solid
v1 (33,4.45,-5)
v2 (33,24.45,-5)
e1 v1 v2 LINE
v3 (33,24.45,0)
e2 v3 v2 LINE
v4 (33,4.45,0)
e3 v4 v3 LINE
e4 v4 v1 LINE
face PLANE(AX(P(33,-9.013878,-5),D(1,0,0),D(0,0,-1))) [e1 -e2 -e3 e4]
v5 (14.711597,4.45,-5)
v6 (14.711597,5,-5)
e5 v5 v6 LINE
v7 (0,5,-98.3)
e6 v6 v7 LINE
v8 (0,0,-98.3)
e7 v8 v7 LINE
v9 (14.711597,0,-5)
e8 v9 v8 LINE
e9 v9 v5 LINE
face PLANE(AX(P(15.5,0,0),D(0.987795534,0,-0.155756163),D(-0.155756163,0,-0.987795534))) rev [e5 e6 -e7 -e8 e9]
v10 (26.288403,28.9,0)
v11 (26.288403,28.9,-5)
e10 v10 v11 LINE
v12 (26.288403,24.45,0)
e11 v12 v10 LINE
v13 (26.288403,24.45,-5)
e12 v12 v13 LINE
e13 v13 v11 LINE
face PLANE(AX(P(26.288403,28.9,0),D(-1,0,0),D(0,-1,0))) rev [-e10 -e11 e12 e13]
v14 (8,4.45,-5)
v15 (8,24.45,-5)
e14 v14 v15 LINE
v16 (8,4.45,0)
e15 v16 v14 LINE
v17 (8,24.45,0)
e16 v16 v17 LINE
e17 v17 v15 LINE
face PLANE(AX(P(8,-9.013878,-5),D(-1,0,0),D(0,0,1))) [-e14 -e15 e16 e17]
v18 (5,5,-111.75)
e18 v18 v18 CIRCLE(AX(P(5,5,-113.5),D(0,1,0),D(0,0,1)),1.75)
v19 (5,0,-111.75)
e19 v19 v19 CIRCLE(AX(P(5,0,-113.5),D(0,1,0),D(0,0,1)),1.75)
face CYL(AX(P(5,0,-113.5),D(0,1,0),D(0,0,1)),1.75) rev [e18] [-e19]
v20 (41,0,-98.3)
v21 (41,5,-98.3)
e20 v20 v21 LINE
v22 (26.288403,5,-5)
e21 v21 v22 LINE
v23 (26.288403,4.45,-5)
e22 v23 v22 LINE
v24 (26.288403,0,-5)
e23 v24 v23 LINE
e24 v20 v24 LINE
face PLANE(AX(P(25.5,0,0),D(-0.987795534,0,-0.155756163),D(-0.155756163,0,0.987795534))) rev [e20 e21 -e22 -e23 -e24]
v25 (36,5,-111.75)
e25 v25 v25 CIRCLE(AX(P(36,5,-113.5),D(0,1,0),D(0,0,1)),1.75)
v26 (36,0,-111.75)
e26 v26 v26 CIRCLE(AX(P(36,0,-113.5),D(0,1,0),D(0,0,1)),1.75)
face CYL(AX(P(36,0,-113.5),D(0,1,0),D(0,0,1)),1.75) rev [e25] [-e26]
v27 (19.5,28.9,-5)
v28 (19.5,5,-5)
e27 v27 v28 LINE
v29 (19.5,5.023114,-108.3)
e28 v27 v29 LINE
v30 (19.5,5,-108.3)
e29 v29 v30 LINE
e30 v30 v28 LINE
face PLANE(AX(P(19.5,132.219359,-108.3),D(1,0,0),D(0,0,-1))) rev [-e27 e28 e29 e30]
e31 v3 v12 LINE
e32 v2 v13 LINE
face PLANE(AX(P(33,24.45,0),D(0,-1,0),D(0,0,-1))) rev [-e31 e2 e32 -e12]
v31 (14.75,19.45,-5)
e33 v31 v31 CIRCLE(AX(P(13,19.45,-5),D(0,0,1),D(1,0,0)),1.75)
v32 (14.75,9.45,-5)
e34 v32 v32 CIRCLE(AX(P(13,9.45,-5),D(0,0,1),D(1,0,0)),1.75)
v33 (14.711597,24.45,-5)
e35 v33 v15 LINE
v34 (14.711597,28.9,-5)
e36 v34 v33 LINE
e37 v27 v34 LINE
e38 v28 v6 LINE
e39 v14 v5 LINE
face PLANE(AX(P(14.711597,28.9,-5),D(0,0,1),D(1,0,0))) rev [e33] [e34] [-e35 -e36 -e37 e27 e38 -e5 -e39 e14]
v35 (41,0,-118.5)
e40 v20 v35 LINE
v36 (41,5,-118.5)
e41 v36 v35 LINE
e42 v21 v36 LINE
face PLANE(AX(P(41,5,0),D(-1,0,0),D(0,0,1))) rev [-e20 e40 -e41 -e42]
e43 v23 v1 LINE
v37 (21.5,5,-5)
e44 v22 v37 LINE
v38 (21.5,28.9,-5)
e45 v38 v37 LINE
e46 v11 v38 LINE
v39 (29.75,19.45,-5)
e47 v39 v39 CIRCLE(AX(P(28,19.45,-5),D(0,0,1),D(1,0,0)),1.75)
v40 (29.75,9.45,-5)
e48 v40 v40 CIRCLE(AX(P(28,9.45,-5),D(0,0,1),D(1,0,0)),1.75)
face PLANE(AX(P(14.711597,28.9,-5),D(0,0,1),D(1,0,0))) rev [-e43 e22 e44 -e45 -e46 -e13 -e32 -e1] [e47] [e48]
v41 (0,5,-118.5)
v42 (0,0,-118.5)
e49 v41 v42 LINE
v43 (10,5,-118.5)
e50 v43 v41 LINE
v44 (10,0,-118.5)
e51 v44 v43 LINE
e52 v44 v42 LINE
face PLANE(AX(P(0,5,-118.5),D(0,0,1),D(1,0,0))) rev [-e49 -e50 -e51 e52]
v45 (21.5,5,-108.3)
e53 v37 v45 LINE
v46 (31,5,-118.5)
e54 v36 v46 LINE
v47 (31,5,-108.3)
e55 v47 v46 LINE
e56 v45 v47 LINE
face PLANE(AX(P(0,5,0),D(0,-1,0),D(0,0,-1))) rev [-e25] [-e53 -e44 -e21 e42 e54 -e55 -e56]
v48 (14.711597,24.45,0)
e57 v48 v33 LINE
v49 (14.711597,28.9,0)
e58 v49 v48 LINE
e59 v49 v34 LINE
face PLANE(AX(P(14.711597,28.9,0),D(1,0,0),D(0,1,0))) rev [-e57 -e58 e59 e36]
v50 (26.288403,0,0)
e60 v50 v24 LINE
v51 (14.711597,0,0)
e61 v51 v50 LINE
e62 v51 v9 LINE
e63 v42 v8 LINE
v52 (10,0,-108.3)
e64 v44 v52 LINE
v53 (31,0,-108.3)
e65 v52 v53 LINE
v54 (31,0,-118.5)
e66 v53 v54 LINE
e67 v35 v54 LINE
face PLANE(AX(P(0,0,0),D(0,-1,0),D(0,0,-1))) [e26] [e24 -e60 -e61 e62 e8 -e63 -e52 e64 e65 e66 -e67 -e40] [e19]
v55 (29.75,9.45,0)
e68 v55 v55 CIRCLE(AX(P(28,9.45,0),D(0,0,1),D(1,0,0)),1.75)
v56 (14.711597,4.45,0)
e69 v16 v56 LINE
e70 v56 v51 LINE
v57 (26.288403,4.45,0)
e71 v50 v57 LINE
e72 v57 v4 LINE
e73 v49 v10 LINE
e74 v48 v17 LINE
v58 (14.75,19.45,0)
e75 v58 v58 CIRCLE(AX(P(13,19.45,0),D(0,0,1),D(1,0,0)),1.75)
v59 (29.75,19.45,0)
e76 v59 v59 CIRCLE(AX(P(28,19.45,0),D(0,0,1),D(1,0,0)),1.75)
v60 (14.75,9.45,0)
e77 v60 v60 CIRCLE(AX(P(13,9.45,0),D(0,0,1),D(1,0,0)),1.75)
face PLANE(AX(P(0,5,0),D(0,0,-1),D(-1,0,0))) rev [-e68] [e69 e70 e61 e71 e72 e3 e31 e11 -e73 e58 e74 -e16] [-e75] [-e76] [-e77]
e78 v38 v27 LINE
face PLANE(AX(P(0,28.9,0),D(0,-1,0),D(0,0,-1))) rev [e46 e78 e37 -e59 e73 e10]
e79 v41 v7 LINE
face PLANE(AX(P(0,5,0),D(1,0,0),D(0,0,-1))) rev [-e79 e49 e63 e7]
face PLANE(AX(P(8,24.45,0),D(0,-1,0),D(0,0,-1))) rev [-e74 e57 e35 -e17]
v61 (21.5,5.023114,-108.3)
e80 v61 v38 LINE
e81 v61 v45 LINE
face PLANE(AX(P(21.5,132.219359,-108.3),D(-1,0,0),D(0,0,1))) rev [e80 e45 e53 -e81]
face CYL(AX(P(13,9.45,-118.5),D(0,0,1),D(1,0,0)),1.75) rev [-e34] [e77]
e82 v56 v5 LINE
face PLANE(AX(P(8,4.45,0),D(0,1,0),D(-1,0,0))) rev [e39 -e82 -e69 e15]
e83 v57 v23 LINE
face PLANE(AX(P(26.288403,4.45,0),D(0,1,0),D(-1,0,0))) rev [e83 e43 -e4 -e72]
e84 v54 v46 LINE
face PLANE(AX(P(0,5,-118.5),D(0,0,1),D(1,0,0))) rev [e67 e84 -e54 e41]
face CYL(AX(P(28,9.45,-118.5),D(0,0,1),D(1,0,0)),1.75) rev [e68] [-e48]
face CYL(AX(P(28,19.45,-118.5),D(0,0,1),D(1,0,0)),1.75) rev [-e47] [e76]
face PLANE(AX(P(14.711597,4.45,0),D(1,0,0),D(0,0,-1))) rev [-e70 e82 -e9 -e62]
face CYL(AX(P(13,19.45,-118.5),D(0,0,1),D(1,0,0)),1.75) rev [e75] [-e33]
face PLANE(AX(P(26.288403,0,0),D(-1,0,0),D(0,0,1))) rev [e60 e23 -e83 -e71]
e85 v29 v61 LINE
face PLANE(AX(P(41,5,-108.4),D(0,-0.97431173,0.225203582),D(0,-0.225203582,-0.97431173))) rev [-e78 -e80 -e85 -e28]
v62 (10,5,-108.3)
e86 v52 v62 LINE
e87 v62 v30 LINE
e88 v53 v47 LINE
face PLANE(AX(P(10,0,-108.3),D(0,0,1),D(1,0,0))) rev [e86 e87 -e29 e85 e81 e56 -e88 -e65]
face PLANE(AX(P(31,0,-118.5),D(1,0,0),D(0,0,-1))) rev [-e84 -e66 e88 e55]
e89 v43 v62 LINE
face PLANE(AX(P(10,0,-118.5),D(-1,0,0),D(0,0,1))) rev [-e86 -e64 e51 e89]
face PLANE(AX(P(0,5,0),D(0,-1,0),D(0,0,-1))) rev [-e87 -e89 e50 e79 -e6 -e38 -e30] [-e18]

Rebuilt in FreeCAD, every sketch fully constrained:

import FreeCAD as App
import Part
import Sketcher
from FreeCAD import Vector


def add_polygon(sketch, points):
    """Adds a closed chain of lines whose ends are joined by coincident constraints."""
    first, n = sketch.GeometryCount, len(points)
    for a, b in zip(points, points[1:] + points[:1]):
        sketch.addGeometry(Part.LineSegment(App.Vector(*a, 0), App.Vector(*b, 0)), False)
    for i in range(n):
        sketch.addConstraint(Sketcher.Constraint("Coincident", first + i, 2, first + (i + 1) % n, 1))

doc = App.newDocument("Part")
body = doc.addObject("PartDesign::Body", "Body")

# Sketch on XZ plane
sketch1 = doc.addObject("Sketcher::SketchObject", "Sketch")
body.addObject(sketch1)
sketch1.AttachmentSupport = (doc.XZ_Plane, [""])
sketch1.MapMode = "FlatFace"
add_polygon(sketch1, [(0, -118), (0, 0), (41, 0), (41, -118)])  # lines 0-3
sketch1.addConstraint(Sketcher.Constraint("Vertical", 0))
sketch1.addConstraint(Sketcher.Constraint("Horizontal", 1))
sketch1.addConstraint(Sketcher.Constraint("Vertical", 2))
sketch1.addConstraint(Sketcher.Constraint("Horizontal", 3))
sketch1.addConstraint(Sketcher.Constraint("Coincident", 0, 2, -1, 1))
sketch1.addConstraint(Sketcher.Constraint("DistanceX", 1, 1, 1, 2, 41.0))
sketch1.addConstraint(Sketcher.Constraint("DistanceY", 0, 1, 0, 2, 118.5))
pad1 = doc.addObject("PartDesign::Pad", "Pad")
body.addObject(pad1)
pad1.Profile = sketch1
pad1.Length = 5
pad1.Reversed = True

# Sketch on XZ plane
sketch2 = doc.addObject("Sketcher::SketchObject", "Sketch001")
body.addObject(sketch2)
sketch2.AttachmentSupport = (doc.XZ_Plane, [""])
sketch2.MapMode = "FlatFace"
sketch2.AttachmentOffset = App.Placement(Vector(0, 0, -5), App.Rotation())
add_polygon(sketch2, [(10, -118), (10, -108), (31, -108), (31, -118)])  # lines 0-3
sketch2.addConstraint(Sketcher.Constraint("Vertical", 0))
sketch2.addConstraint(Sketcher.Constraint("Horizontal", 1))
sketch2.addConstraint(Sketcher.Constraint("Vertical", 2))
sketch2.addConstraint(Sketcher.Constraint("Horizontal", 3))
sketch2.addConstraint(Sketcher.Constraint("DistanceX", 1, 1, 1, 2, 21.0))
sketch2.addConstraint(Sketcher.Constraint("DistanceY", 0, 1, 0, 2, 10.2))
sketch2.addConstraint(Sketcher.Constraint("DistanceX", -1, 1, 0, 2, 10.0))
sketch2.addConstraint(Sketcher.Constraint("DistanceY", 0, 2, -1, 1, 108.3))
pocket1 = doc.addObject("PartDesign::Pocket", "Pocket")
body.addObject(pocket1)
pocket1.Profile = sketch2
pocket1.Type = "ThroughAll"
pocket1.Reversed = True

# Sketch on XZ plane
sketch3 = doc.addObject("Sketcher::SketchObject", "Sketch002")
body.addObject(sketch3)
sketch3.AttachmentSupport = (doc.XZ_Plane, [""])
sketch3.MapMode = "FlatFace"
sketch3.AttachmentOffset = App.Placement(Vector(0, 0, -5), App.Rotation())
sketch3.addGeometry(Part.Circle(Vector(5, -113.5, 0), Vector(0, 0, 1), 1.8), False)
sketch3.addGeometry(Part.Circle(Vector(36, -113.5, 0), Vector(0, 0, 1), 1.8), False)
sketch3.addConstraint(Sketcher.Constraint("Equal", 0, 1))
sketch3.addConstraint(Sketcher.Constraint("Horizontal", 0, 3, 1, 3))
sketch3.addConstraint(Sketcher.Constraint("Diameter", 0, 3.5))
sketch3.addConstraint(Sketcher.Constraint("DistanceX", -1, 1, 0, 3, 5.0))
sketch3.addConstraint(Sketcher.Constraint("DistanceX", -1, 1, 1, 3, 36.0))
sketch3.addConstraint(Sketcher.Constraint("DistanceY", 0, 3, -1, 1, 113.5))
pocket2 = doc.addObject("PartDesign::Pocket", "Pocket001")
body.addObject(pocket2)
pocket2.Profile = sketch3
pocket2.Type = "ThroughAll"
pocket2.Reversed = True

# Sketch on XZ plane
sketch4 = doc.addObject("Sketcher::SketchObject", "Sketch003")
body.addObject(sketch4)
sketch4.AttachmentSupport = (doc.XZ_Plane, [""])
sketch4.MapMode = "FlatFace"
sketch4.AttachmentOffset = App.Placement(Vector(0, 0, -5), App.Rotation())
add_polygon(sketch4, [(16, 0), (0, -98), (0, 0)])  # lines 0-2
add_polygon(sketch4, [(41, -98), (26, 0), (41, 0)])  # lines 3-5
sketch4.addConstraint(Sketcher.Constraint("Vertical", 1))
sketch4.addConstraint(Sketcher.Constraint("Horizontal", 2))
sketch4.addConstraint(Sketcher.Constraint("Horizontal", 4))
sketch4.addConstraint(Sketcher.Constraint("Vertical", 5))
sketch4.addConstraint(Sketcher.Constraint("Coincident", 1, 2, -1, 1))
sketch4.addConstraint(Sketcher.Constraint("PointOnObject", 3, 2, -1))
sketch4.addConstraint(Sketcher.Constraint("Horizontal", 0, 2, 5, 2))
sketch4.addConstraint(Sketcher.Constraint("Equal", 2, 4))
sketch4.addConstraint(Sketcher.Constraint("DistanceX", 2, 1, 2, 2, 15.5))
sketch4.addConstraint(Sketcher.Constraint("DistanceY", 1, 1, 1, 2, 98.3))
sketch4.addConstraint(Sketcher.Constraint("DistanceX", -1, 1, 4, 2, 41.0))
pocket3 = doc.addObject("PartDesign::Pocket", "Pocket002")
body.addObject(pocket3)
pocket3.Profile = sketch4
pocket3.Type = "ThroughAll"
pocket3.Reversed = True

# Sketch on XZ plane
sketch5 = doc.addObject("Sketcher::SketchObject", "Sketch004")
body.addObject(sketch5)
sketch5.AttachmentSupport = (doc.XZ_Plane, [""])
sketch5.MapMode = "FlatFace"
sketch5.AttachmentOffset = App.Placement(Vector(0, 0, -5), App.Rotation())
add_polygon(sketch5, [(16, 0), (26, 0), (26, -5), (15, -5)])  # lines 0-3
sketch5.addConstraint(Sketcher.Constraint("Horizontal", 0))
sketch5.addConstraint(Sketcher.Constraint("Horizontal", 2))
sketch5.addConstraint(Sketcher.Constraint("PointOnObject", 0, 2, -1))
sketch5.addConstraint(Sketcher.Constraint("Equal", 1, 3))
sketch5.addConstraint(Sketcher.Constraint("DistanceX", 0, 1, 0, 2, 10.0))
sketch5.addConstraint(Sketcher.Constraint("DistanceY", 1, 2, -1, 1, 5.0))
sketch5.addConstraint(Sketcher.Constraint("DistanceX", -1, 1, 0, 2, 25.5))
sketch5.addConstraint(Sketcher.Constraint("DistanceX", 2, 2, 2, 1, 11.576806))
pad2 = doc.addObject("PartDesign::Pad", "Pad001")
body.addObject(pad2)
pad2.Profile = sketch5
pad2.Length = 23.9
pad2.Reversed = True

# Sketch on XZ plane
sketch6 = doc.addObject("Sketcher::SketchObject", "Sketch005")
body.addObject(sketch6)
sketch6.AttachmentSupport = (doc.XZ_Plane, [""])
sketch6.MapMode = "FlatFace"
sketch6.AttachmentOffset = App.Placement(Vector(0, 0, -5), App.Rotation())
add_polygon(sketch6, [(19.5, -108.3), (19.5, -5), (21.5, -5), (21.5, -108.3)])  # lines 0-3
sketch6.addConstraint(Sketcher.Constraint("Vertical", 0))
sketch6.addConstraint(Sketcher.Constraint("Horizontal", 1))
sketch6.addConstraint(Sketcher.Constraint("Vertical", 2))
sketch6.addConstraint(Sketcher.Constraint("Horizontal", 3))
sketch6.addConstraint(Sketcher.Constraint("DistanceX", 1, 1, 1, 2, 2.0))
sketch6.addConstraint(Sketcher.Constraint("DistanceY", 0, 1, 0, 2, 103.3))
sketch6.addConstraint(Sketcher.Constraint("DistanceY", 0, 2, -1, 1, 5.0))
sketch6.addConstraint(Sketcher.Constraint("DistanceX", -1, 1, 0, 2, 19.5))
pad3 = doc.addObject("PartDesign::Pad", "Pad002")
body.addObject(pad3)
pad3.Profile = sketch6
pad3.Length = 23.9
pad3.Reversed = True

# Sketch on YZ plane
sketch7 = doc.addObject("Sketcher::SketchObject", "Sketch006")
body.addObject(sketch7)
sketch7.AttachmentSupport = (doc.YZ_Plane, [""])
sketch7.MapMode = "FlatFace"
sketch7.AttachmentOffset = App.Placement(Vector(0, 0, 19.5), App.Rotation())
add_polygon(sketch7, [(5, -108), (29, -5), (29, -108)])  # lines 0-2
sketch7.addConstraint(Sketcher.Constraint("Vertical", 1))
sketch7.addConstraint(Sketcher.Constraint("DistanceY", 1, 2, 1, 1, 103.3))
sketch7.addConstraint(Sketcher.Constraint("DistanceY", 0, 2, -1, 1, 5.0))
sketch7.addConstraint(Sketcher.Constraint("DistanceX", -1, 1, 2, 2, 5.0))
sketch7.addConstraint(Sketcher.Constraint("DistanceX", -1, 1, 0, 2, 28.9))
sketch7.addConstraint(Sketcher.Constraint("DistanceY", 2, 2, -1, 1, 108.4))
pocket4 = doc.addObject("PartDesign::Pocket", "Pocket003")
body.addObject(pocket4)
pocket4.Profile = sketch7
pocket4.Type = "ThroughAll"
pocket4.Reversed = True

# Sketch on XZ plane
sketch8 = doc.addObject("Sketcher::SketchObject", "Sketch007")
body.addObject(sketch8)
sketch8.AttachmentSupport = (doc.XZ_Plane, [""])
sketch8.MapMode = "FlatFace"
sketch8.AttachmentOffset = App.Placement(Vector(0, 0, -28.9), App.Rotation())
add_polygon(sketch8, [(33, -5), (26, -5), (26, 0), (33, 0)])  # lines 0-3
add_polygon(sketch8, [(15, -5), (8, -5), (8, 0), (16, 0)])  # lines 4-7
sketch8.addConstraint(Sketcher.Constraint("Horizontal", 0))
sketch8.addConstraint(Sketcher.Constraint("Horizontal", 2))
sketch8.addConstraint(Sketcher.Constraint("Vertical", 3))
sketch8.addConstraint(Sketcher.Constraint("Horizontal", 4))
sketch8.addConstraint(Sketcher.Constraint("Vertical", 5))
sketch8.addConstraint(Sketcher.Constraint("Horizontal", 6))
sketch8.addConstraint(Sketcher.Constraint("PointOnObject", 1, 2, -1))
sketch8.addConstraint(Sketcher.Constraint("PointOnObject", 5, 2, -1))
sketch8.addConstraint(Sketcher.Constraint("Horizontal", 3, 2, 4, 2))
sketch8.addConstraint(Sketcher.Constraint("Equal", 0, 4))
sketch8.addConstraint(Sketcher.Constraint("Equal", 2, 6))
sketch8.addConstraint(Sketcher.Constraint("DistanceY", 3, 2, 3, 1, 5.0))
sketch8.addConstraint(Sketcher.Constraint("DistanceX", 2, 1, 2, 2, 7.5))
sketch8.addConstraint(Sketcher.Constraint("DistanceX", -1, 1, 2, 2, 33.0))
sketch8.addConstraint(Sketcher.Constraint("DistanceX", -1, 1, 4, 2, 8.0))
sketch8.addConstraint(Sketcher.Constraint("DistanceX", 0, 2, 0, 1, 6.711597))
pad4 = doc.addObject("PartDesign::Pad", "Pad003")
body.addObject(pad4)
pad4.Profile = sketch8
pad4.Length = 28.9

# Sketch on XY plane
sketch9 = doc.addObject("Sketcher::SketchObject", "Sketch008")
body.addObject(sketch9)
sketch9.AttachmentSupport = (doc.XY_Plane, [""])
sketch9.MapMode = "FlatFace"
sketch9.AttachmentOffset = App.Placement(Vector(0, 0, -5), App.Rotation())
add_polygon(sketch9, [(14.7, 4.5), (14.7, 0), (8, 0), (8, 4.5)])  # lines 0-3
add_polygon(sketch9, [(33, 4.5), (33, 0), (26.3, 0), (26.3, 4.5)])  # lines 4-7
add_polygon(sketch9, [(14.7, 28.9), (14.7, 24.4), (8, 24.4), (8, 28.9)])  # lines 8-11
add_polygon(sketch9, [(33, 28.9), (33, 24.4), (26.3, 24.4), (26.3, 28.9)])  # lines 12-15
sketch9.addConstraint(Sketcher.Constraint("Vertical", 0))
sketch9.addConstraint(Sketcher.Constraint("Horizontal", 1))
sketch9.addConstraint(Sketcher.Constraint("Vertical", 2))
sketch9.addConstraint(Sketcher.Constraint("Horizontal", 3))
sketch9.addConstraint(Sketcher.Constraint("Vertical", 4))
sketch9.addConstraint(Sketcher.Constraint("Horizontal", 5))
sketch9.addConstraint(Sketcher.Constraint("Vertical", 6))
sketch9.addConstraint(Sketcher.Constraint("Horizontal", 7))
sketch9.addConstraint(Sketcher.Constraint("Vertical", 8))
sketch9.addConstraint(Sketcher.Constraint("Horizontal", 9))
sketch9.addConstraint(Sketcher.Constraint("Vertical", 10))
sketch9.addConstraint(Sketcher.Constraint("Horizontal", 11))
sketch9.addConstraint(Sketcher.Constraint("Vertical", 12))
sketch9.addConstraint(Sketcher.Constraint("Horizontal", 13))
sketch9.addConstraint(Sketcher.Constraint("Vertical", 14))
sketch9.addConstraint(Sketcher.Constraint("Horizontal", 15))
sketch9.addConstraint(Sketcher.Constraint("PointOnObject", 0, 2, -1))
sketch9.addConstraint(Sketcher.Constraint("PointOnObject", 4, 2, -1))
sketch9.addConstraint(Sketcher.Constraint("Horizontal", 3, 2, 6, 2))
sketch9.addConstraint(Sketcher.Constraint("Horizontal", 9, 2, 12, 2))
sketch9.addConstraint(Sketcher.Constraint("Horizontal", 11, 2, 14, 2))
sketch9.addConstraint(Sketcher.Constraint("Vertical", 3, 2, 8, 2))
sketch9.addConstraint(Sketcher.Constraint("Vertical", 2, 2, 9, 2))
sketch9.addConstraint(Sketcher.Constraint("Vertical", 7, 2, 12, 2))
sketch9.addConstraint(Sketcher.Constraint("Vertical", 6, 2, 13, 2))
sketch9.addConstraint(Sketcher.Constraint("Equal", 3, 5))
sketch9.addConstraint(Sketcher.Constraint("Equal", 6, 8))
sketch9.addConstraint(Sketcher.Constraint("DistanceX", -1, 1, 1, 2, 8.0))
sketch9.addConstraint(Sketcher.Constraint("DistanceX", -1, 1, 4, 2, 33.0))
sketch9.addConstraint(Sketcher.Constraint("DistanceY", 3, 2, 8, 2, 20.0))
sketch9.addConstraint(Sketcher.Constraint("DistanceY", 0, 2, 0, 1, 4.45))
sketch9.addConstraint(Sketcher.Constraint("DistanceX", 1, 2, 1, 1, 6.711597))
pocket5 = doc.addObject("PartDesign::Pocket", "Pocket004")
body.addObject(pocket5)
pocket5.Profile = sketch9
pocket5.Type = "ThroughAll"
pocket5.Reversed = True

# Sketch on XY plane
sketch10 = doc.addObject("Sketcher::SketchObject", "Sketch009")
body.addObject(sketch10)
sketch10.AttachmentSupport = (doc.XY_Plane, [""])
sketch10.MapMode = "FlatFace"
sketch10.addGeometry(Part.Circle(Vector(13, 19.4, 0), Vector(0, 0, 1), 1.8), False)
sketch10.addGeometry(Part.Circle(Vector(28, 19.4, 0), Vector(0, 0, 1), 1.8), False)
sketch10.addGeometry(Part.Circle(Vector(13, 9.4, 0), Vector(0, 0, 1), 1.8), False)
sketch10.addGeometry(Part.Circle(Vector(28, 9.4, 0), Vector(0, 0, 1), 1.8), False)
sketch10.addConstraint(Sketcher.Constraint("Equal", 0, 1))
sketch10.addConstraint(Sketcher.Constraint("Equal", 1, 2))
sketch10.addConstraint(Sketcher.Constraint("Equal", 2, 3))
sketch10.addConstraint(Sketcher.Constraint("Horizontal", 0, 3, 1, 3))
sketch10.addConstraint(Sketcher.Constraint("Horizontal", 2, 3, 3, 3))
sketch10.addConstraint(Sketcher.Constraint("Vertical", 0, 3, 2, 3))
sketch10.addConstraint(Sketcher.Constraint("Vertical", 1, 3, 3, 3))
sketch10.addConstraint(Sketcher.Constraint("Diameter", 0, 3.5))
sketch10.addConstraint(Sketcher.Constraint("DistanceX", -1, 1, 0, 3, 13.0))
sketch10.addConstraint(Sketcher.Constraint("DistanceX", -1, 1, 1, 3, 28.0))
sketch10.addConstraint(Sketcher.Constraint("DistanceY", 2, 3, 0, 3, 10.0))
sketch10.addConstraint(Sketcher.Constraint("DistanceY", -1, 1, 0, 3, 19.45))
pocket6 = doc.addObject("PartDesign::Pocket", "Pocket005")
body.addObject(pocket6)
pocket6.Profile = sketch10
pocket6.Type = "ThroughAll"

doc.recompute()
